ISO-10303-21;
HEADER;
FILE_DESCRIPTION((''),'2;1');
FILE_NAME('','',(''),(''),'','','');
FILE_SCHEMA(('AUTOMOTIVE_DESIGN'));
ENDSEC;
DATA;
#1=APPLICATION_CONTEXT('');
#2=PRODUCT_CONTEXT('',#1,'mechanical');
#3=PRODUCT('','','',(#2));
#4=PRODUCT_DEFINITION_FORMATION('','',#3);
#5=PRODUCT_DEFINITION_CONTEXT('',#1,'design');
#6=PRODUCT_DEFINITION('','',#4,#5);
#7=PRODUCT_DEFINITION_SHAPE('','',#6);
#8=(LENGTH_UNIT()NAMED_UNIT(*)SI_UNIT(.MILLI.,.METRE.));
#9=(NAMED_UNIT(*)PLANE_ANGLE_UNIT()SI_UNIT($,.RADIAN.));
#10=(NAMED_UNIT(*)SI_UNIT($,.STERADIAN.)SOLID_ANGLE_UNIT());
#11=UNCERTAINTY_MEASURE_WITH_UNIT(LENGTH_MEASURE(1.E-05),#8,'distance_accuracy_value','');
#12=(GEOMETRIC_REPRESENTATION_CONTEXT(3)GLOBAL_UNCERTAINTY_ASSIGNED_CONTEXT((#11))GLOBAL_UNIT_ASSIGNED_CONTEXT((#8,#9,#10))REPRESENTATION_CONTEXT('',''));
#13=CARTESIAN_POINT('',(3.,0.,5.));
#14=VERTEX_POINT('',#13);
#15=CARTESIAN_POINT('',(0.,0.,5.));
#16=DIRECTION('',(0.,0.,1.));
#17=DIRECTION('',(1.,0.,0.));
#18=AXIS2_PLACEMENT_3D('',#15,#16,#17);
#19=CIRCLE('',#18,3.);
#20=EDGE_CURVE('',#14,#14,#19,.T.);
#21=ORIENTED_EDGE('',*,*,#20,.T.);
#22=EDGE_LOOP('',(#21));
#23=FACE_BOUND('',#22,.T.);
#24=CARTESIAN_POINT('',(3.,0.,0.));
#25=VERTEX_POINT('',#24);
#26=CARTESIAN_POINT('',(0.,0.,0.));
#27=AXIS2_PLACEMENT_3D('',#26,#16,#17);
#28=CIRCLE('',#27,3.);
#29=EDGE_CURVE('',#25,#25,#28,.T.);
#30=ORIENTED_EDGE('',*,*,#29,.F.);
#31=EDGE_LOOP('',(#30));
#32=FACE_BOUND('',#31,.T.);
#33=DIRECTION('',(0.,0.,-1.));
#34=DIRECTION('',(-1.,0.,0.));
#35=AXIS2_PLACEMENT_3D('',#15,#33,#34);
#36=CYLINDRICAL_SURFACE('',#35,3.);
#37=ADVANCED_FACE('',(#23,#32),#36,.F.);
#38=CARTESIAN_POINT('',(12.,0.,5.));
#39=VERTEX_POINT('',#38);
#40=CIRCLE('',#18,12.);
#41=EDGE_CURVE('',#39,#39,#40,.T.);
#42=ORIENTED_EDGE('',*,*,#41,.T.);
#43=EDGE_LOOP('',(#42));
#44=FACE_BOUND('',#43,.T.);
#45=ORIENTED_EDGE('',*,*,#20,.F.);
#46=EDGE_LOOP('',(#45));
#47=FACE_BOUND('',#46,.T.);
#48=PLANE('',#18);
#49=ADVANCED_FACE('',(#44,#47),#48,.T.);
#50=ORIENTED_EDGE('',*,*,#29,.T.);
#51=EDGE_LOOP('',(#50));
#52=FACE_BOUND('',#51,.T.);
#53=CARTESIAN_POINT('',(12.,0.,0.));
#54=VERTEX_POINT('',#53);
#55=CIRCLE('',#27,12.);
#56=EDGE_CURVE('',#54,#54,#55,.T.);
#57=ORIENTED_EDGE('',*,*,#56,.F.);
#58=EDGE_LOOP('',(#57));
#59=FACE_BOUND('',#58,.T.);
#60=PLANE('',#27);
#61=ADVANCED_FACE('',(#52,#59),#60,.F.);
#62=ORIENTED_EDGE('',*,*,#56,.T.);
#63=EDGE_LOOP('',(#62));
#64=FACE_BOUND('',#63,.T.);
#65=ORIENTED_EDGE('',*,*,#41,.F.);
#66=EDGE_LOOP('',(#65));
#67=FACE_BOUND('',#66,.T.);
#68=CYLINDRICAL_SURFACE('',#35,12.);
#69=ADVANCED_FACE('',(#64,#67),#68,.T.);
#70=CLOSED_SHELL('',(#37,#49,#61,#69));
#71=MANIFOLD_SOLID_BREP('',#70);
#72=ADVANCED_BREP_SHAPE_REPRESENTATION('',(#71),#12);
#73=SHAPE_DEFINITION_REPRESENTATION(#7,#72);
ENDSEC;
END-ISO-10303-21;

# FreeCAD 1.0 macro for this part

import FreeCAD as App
import Part
import Sketcher
from FreeCAD import Vector
Q = App.Units.Quantity

doc = App.newDocument("Part")
body = doc.addObject("PartDesign::Body", "Body")

sketch1 = body.newObject("Sketcher::SketchObject", "Sketch")
sketch1.AttachmentSupport = (doc.getObject("XY_Plane"), [""])
sketch1.MapMode = "FlatFace"
sketch1.addGeometry([
    Part.Circle(Vector(0, 0, 0), Vector(0, 0, 1), 12),
    Part.Circle(Vector(0, 0, 0), Vector(0, 0, 1), 3),
], False)
sketch1.addConstraint([
    Sketcher.Constraint("Coincident", 0, 3, -1, 1),
    Sketcher.Constraint("Coincident", 1, 3, -1, 1),
    Sketcher.Constraint("Diameter", 0, Q("24 mm")),
    Sketcher.Constraint("Diameter", 1, Q("6 mm")),
])
pad1 = body.newObject("PartDesign::Pad", "Pad")
pad1.Profile = sketch1
pad1.Length = 5

doc.recompute()
